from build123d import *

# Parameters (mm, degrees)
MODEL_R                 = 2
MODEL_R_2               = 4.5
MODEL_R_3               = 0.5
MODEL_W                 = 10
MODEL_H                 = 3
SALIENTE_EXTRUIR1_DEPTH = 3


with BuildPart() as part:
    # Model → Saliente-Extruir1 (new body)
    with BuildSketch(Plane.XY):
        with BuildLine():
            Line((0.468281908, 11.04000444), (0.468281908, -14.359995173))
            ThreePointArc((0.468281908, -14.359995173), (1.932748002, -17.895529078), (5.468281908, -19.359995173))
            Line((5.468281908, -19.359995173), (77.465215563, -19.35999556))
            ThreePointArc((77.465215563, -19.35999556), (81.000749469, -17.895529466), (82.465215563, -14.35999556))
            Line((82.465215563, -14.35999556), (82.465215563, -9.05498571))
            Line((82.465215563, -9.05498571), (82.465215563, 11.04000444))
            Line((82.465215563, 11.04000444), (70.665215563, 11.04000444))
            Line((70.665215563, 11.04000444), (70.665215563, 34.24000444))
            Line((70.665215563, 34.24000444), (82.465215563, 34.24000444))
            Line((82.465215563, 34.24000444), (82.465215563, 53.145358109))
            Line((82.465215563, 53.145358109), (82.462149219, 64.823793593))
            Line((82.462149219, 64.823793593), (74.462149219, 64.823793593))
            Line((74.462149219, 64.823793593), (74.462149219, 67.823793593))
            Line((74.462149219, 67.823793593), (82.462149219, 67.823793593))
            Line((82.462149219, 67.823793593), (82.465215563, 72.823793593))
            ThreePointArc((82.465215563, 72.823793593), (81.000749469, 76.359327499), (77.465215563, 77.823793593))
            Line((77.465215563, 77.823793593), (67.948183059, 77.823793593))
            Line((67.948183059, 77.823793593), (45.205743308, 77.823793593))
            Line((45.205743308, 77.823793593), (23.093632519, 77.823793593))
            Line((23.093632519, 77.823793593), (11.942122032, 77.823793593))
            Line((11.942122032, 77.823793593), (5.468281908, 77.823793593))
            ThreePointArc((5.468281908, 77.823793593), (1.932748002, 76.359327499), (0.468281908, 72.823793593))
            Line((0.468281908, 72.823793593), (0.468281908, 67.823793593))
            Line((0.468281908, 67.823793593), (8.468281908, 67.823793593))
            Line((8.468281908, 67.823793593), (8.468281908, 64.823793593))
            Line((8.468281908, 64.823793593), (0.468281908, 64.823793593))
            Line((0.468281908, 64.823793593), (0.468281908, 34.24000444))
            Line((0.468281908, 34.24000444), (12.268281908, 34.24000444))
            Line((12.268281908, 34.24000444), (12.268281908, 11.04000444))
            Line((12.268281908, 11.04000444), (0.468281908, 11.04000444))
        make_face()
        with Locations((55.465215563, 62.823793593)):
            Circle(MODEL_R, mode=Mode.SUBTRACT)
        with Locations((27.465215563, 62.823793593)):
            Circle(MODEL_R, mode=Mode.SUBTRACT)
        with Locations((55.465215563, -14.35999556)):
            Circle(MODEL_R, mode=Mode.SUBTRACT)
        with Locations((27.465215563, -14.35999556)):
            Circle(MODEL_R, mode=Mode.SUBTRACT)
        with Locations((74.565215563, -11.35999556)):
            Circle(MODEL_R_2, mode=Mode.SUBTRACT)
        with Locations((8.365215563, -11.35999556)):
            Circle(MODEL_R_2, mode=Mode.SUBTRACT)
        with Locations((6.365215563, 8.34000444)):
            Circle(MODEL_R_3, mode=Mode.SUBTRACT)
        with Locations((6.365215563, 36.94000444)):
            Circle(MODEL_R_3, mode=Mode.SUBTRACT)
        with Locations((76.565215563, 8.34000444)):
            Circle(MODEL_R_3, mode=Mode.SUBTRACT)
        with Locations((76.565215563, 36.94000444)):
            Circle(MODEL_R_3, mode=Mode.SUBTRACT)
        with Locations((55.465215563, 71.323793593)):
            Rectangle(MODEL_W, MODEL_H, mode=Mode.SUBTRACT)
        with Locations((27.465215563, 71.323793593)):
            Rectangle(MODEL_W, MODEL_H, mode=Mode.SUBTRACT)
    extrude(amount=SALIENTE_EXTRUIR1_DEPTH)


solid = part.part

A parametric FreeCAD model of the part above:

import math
import FreeCAD as App
import Part
import Sketcher
Q = App.Units.Quantity

doc = App.newDocument("Part")
body = doc.addObject("PartDesign::Body", "Body")

sketch1 = doc.addObject("Sketcher::SketchObject", "Sketch")
body.addObject(sketch1)
sketch1.AttachmentSupport = (doc.XY_Plane, [""])
sketch1.MapMode = "FlatFace"
sketch1.addGeometry([
    Part.LineSegment(App.Vector(0.5, 11, 0), App.Vector(0.5, -14.4, 0)),
    Part.ArcOfCircle(Part.Circle(App.Vector(5.5, -14.4, 0), App.Vector(0, 0, 1), 5), math.radians(-180), math.radians(-90)),
    Part.LineSegment(App.Vector(5.5, -19.4, 0), App.Vector(77.5, -19.4, 0)),
    Part.ArcOfCircle(Part.Circle(App.Vector(77.5, -14.4, 0), App.Vector(0, 0, 1), 5), math.radians(-90), math.radians(0)),
    Part.LineSegment(App.Vector(82.5, -14.4, 0), App.Vector(82.5, 11, 0)),
    Part.LineSegment(App.Vector(82.5, 11, 0), App.Vector(70.7, 11, 0)),
    Part.LineSegment(App.Vector(70.7, 11, 0), App.Vector(70.7, 34.2, 0)),
    Part.LineSegment(App.Vector(70.7, 34.2, 0), App.Vector(82.5, 34.2, 0)),
    Part.LineSegment(App.Vector(82.5, 34.2, 0), App.Vector(82.5, 53.1, 0)),
    Part.LineSegment(App.Vector(82.5, 53.1, 0), App.Vector(82.5, 64.8, 0)),
    Part.LineSegment(App.Vector(82.5, 64.8, 0), App.Vector(74.5, 64.8, 0)),
    Part.LineSegment(App.Vector(74.5, 64.8, 0), App.Vector(74.5, 67.8, 0)),
    Part.LineSegment(App.Vector(74.5, 67.8, 0), App.Vector(82.5, 67.8, 0)),
    Part.LineSegment(App.Vector(82.5, 67.8, 0), App.Vector(82.5, 72.8, 0)),
    Part.ArcOfCircle(Part.Circle(App.Vector(77.5, 72.8, 0), App.Vector(0, 0, 1), 5), math.radians(0), math.radians(90)),
    Part.LineSegment(App.Vector(77.5, 77.8, 0), App.Vector(5.5, 77.8, 0)),
    Part.ArcOfCircle(Part.Circle(App.Vector(5.5, 72.8, 0), App.Vector(0, 0, 1), 5), math.radians(90), math.radians(180)),
    Part.LineSegment(App.Vector(0.5, 72.8, 0), App.Vector(0.5, 67.8, 0)),
    Part.LineSegment(App.Vector(0.5, 67.8, 0), App.Vector(8.5, 67.8, 0)),
    Part.LineSegment(App.Vector(8.5, 67.8, 0), App.Vector(8.5, 64.8, 0)),
    Part.LineSegment(App.Vector(8.5, 64.8, 0), App.Vector(0.5, 64.8, 0)),
    Part.LineSegment(App.Vector(0.5, 64.8, 0), App.Vector(0.5, 34.2, 0)),
    Part.LineSegment(App.Vector(0.5, 34.2, 0), App.Vector(12.3, 34.2, 0)),
    Part.LineSegment(App.Vector(12.3, 34.2, 0), App.Vector(12.3, 11, 0)),
    Part.LineSegment(App.Vector(12.3, 11, 0), App.Vector(0.5, 11, 0)),
    Part.Circle(App.Vector(8.4, -11.4, 0), App.Vector(0, 0, 1), 4.5),
    Part.Circle(App.Vector(27.5, -14.4, 0), App.Vector(0, 0, 1), 2),
    Part.Circle(App.Vector(6.4, 8.3, 0), App.Vector(0, 0, 1), 0.5),
    Part.Circle(App.Vector(55.5, -14.4, 0), App.Vector(0, 0, 1), 2),
    Part.Circle(App.Vector(74.6, -11.4, 0), App.Vector(0, 0, 1), 4.5),
    Part.Circle(App.Vector(76.6, 8.3, 0), App.Vector(0, 0, 1), 0.5),
    Part.Circle(App.Vector(6.4, 36.9, 0), App.Vector(0, 0, 1), 0.5),
    Part.Circle(App.Vector(27.5, 62.8, 0), App.Vector(0, 0, 1), 2),
    Part.LineSegment(App.Vector(32.5, 69.8, 0), App.Vector(22.5, 69.8, 0)),
    Part.LineSegment(App.Vector(22.5, 69.8, 0), App.Vector(22.5, 72.8, 0)),
    Part.LineSegment(App.Vector(22.5, 72.8, 0), App.Vector(32.5, 72.8, 0)),
    Part.LineSegment(App.Vector(32.5, 72.8, 0), App.Vector(32.5, 69.8, 0)),
    Part.Circle(App.Vector(76.6, 36.9, 0), App.Vector(0, 0, 1), 0.5),
    Part.Circle(App.Vector(55.5, 62.8, 0), App.Vector(0, 0, 1), 2),
    Part.LineSegment(App.Vector(60.5, 69.8, 0), App.Vector(50.5, 69.8, 0)),
    Part.LineSegment(App.Vector(50.5, 69.8, 0), App.Vector(50.5, 72.8, 0)),
    Part.LineSegment(App.Vector(50.5, 72.8, 0), App.Vector(60.5, 72.8, 0)),
    Part.LineSegment(App.Vector(60.5, 72.8, 0), App.Vector(60.5, 69.8, 0)),
], False)
sketch1.addConstraint([
    Sketcher.Constraint("Tangent", 0, 2, 1, 1),
    Sketcher.Constraint("Tangent", 1, 2, 2, 1),
    Sketcher.Constraint("Tangent", 2, 2, 3, 1),
    Sketcher.Constraint("Tangent", 3, 2, 4, 1),
    Sketcher.Constraint("Coincident", 4, 2, 5, 1),
    Sketcher.Constraint("Coincident", 5, 2, 6, 1),
    Sketcher.Constraint("Coincident", 6, 2, 7, 1),
    Sketcher.Constraint("Coincident", 7, 2, 8, 1),
    Sketcher.Constraint("Coincident", 8, 2, 9, 1),
    Sketcher.Constraint("Coincident", 9, 2, 10, 1),
    Sketcher.Constraint("Coincident", 10, 2, 11, 1),
    Sketcher.Constraint("Coincident", 11, 2, 12, 1),
    Sketcher.Constraint("Coincident", 12, 2, 13, 1),
    Sketcher.Constraint("Coincident", 13, 2, 14, 1),
    Sketcher.Constraint("Tangent", 14, 2, 15, 1),
    Sketcher.Constraint("Tangent", 15, 2, 16, 1),
    Sketcher.Constraint("Tangent", 16, 2, 17, 1),
    Sketcher.Constraint("Coincident", 17, 2, 18, 1),
    Sketcher.Constraint("Coincident", 18, 2, 19, 1),
    Sketcher.Constraint("Coincident", 19, 2, 20, 1),
    Sketcher.Constraint("Coincident", 20, 2, 21, 1),
    Sketcher.Constraint("Coincident", 21, 2, 22, 1),
    Sketcher.Constraint("Coincident", 22, 2, 23, 1),
    Sketcher.Constraint("Coincident", 23, 2, 24, 1),
    Sketcher.Constraint("Coincident", 24, 2, 0, 1),
    Sketcher.Constraint("Coincident", 33, 2, 34, 1),
    Sketcher.Constraint("Coincident", 34, 2, 35, 1),
    Sketcher.Constraint("Coincident", 35, 2, 36, 1),
    Sketcher.Constraint("Coincident", 36, 2, 33, 1),
    Sketcher.Constraint("Coincident", 39, 2, 40, 1),
    Sketcher.Constraint("Coincident", 40, 2, 41, 1),
    Sketcher.Constraint("Coincident", 41, 2, 42, 1),
    Sketcher.Constraint("Coincident", 42, 2, 39, 1),
    Sketcher.Constraint("Vertical", 0),
    Sketcher.Constraint("Horizontal", 2),
    Sketcher.Constraint("Vertical", 4),
    Sketcher.Constraint("Horizontal", 5),
    Sketcher.Constraint("Vertical", 6),
    Sketcher.Constraint("Horizontal", 7),
    Sketcher.Constraint("Vertical", 8),
    Sketcher.Constraint("Horizontal", 10),
    Sketcher.Constraint("Vertical", 11),
    Sketcher.Constraint("Horizontal", 12),
    Sketcher.Constraint("Horizontal", 15),
    Sketcher.Constraint("Vertical", 17),
    Sketcher.Constraint("Horizontal", 18),
    Sketcher.Constraint("Vertical", 19),
    Sketcher.Constraint("Horizontal", 20),
    Sketcher.Constraint("Vertical", 21),
    Sketcher.Constraint("Horizontal", 22),
    Sketcher.Constraint("Vertical", 23),
    Sketcher.Constraint("Horizontal", 24),
    Sketcher.Constraint("Horizontal", 33),
    Sketcher.Constraint("Vertical", 34),
    Sketcher.Constraint("Horizontal", 35),
    Sketcher.Constraint("Vertical", 36),
    Sketcher.Constraint("Horizontal", 39),
    Sketcher.Constraint("Vertical", 40),
    Sketcher.Constraint("Horizontal", 41),
    Sketcher.Constraint("Vertical", 42),
    Sketcher.Constraint("Equal", 1, 3),
    Sketcher.Constraint("Equal", 3, 14),
    Sketcher.Constraint("Equal", 14, 16),
    Sketcher.Constraint("Equal", 26, 28),
    Sketcher.Constraint("Equal", 25, 29),
    Sketcher.Constraint("Equal", 27, 30),
    Sketcher.Constraint("Equal", 30, 31),
    Sketcher.Constraint("Equal", 28, 32),
    Sketcher.Constraint("Equal", 31, 37),
    Sketcher.Constraint("Equal", 32, 38),
    Sketcher.Constraint("Horizontal", 3, 3, 26, 3),
    Sketcher.Constraint("Horizontal", 26, 3, 28, 3),
    Sketcher.Constraint("Horizontal", 25, 3, 29, 3),
    Sketcher.Constraint("Horizontal", 27, 3, 30, 3),
    Sketcher.Constraint("Horizontal", 31, 3, 37, 3),
    Sketcher.Constraint("Horizontal", 32, 3, 38, 3),
    Sketcher.Constraint("Horizontal", 16, 3, 13, 2),
    Sketcher.Constraint("Horizontal", 12, 2, 17, 2),
    Sketcher.Constraint("Horizontal", 10, 2, 19, 2),
    Sketcher.Constraint("Horizontal", 7, 2, 21, 2),
    Sketcher.Constraint("Horizontal", 5, 2, 23, 2),
    Sketcher.Constraint("Horizontal", 16, 2, 34, 2),
    Sketcher.Constraint("Horizontal", 36, 2, 39, 2),
    Sketcher.Constraint("Horizontal", 35, 2, 40, 2),
    Sketcher.Constraint("Vertical", 3, 3, 14, 3),
    Sketcher.Constraint("Vertical", 1, 3, 16, 3),
    Sketcher.Constraint("Vertical", 27, 3, 31, 3),
    Sketcher.Constraint("Vertical", 26, 3, 32, 3),
    Sketcher.Constraint("Vertical", 30, 3, 37, 3),
    Sketcher.Constraint("Vertical", 28, 3, 38, 3),
    Sketcher.Constraint("Vertical", 4, 2, 7, 2),
    Sketcher.Constraint("Vertical", 9, 2, 12, 2),
    Sketcher.Constraint("Vertical", 17, 2, 20, 2),
    Sketcher.Constraint("Equal", 12, 18),
    Sketcher.Constraint("Equal", 7, 22),
    Sketcher.Constraint("Equal", 35, 39),
    Sketcher.Constraint("Equal", 19, 34),
    Sketcher.Constraint("Diameter", 25, Q("9 mm")),
    Sketcher.Constraint("Diameter", 26, Q("4 mm")),
    Sketcher.Constraint("Diameter", 27, Q("1 mm")),
    Sketcher.Constraint("Radius", 1, Q("5 mm")),
    Sketcher.Constraint("DistanceX", 10, 2, 10, 1, Q("8 mm")),
    Sketcher.Constraint("DistanceX", 33, 2, 33, 1, Q("10 mm")),
    Sketcher.Constraint("DistanceY", 11, 1, 11, 2, Q("3 mm")),
    Sketcher.Constraint("DistanceY", 17, 2, 17, 1, Q("5 mm")),
    Sketcher.Constraint("DistanceX", 5, 2, 5, 1, Q("11.8 mm")),
    Sketcher.Constraint("DistanceY", 0, 2, 0, 1, Q("25.4 mm")),
    Sketcher.Constraint("DistanceY", 6, 1, 6, 2, Q("23.2 mm")),
    Sketcher.Constraint("DistanceY", 1, 3, 25, 3, Q("3 mm")),
    Sketcher.Constraint("DistanceX", 26, 3, 3, 3, Q("50 mm")),
    Sketcher.Constraint("DistanceX", 27, 3, 25, 3, Q("2 mm")),
    Sketcher.Constraint("DistanceX", 28, 3, 3, 3, Q("22 mm")),
    Sketcher.Constraint("DistanceX", 29, 3, 30, 3, Q("2 mm")),
    Sketcher.Constraint("DistanceY", 32, 3, 16, 3, Q("10 mm")),
    Sketcher.Constraint("DistanceX", 33, 2, 32, 3, Q("5 mm")),
    Sketcher.Constraint("DistanceX", 39, 2, 38, 3, Q("5 mm")),
    Sketcher.Constraint("DistanceX", 25, 3, 3, 3, Q("69.1 mm")),
    Sketcher.Constraint("DistanceY", 25, 3, 27, 3, Q("19.7 mm")),
    Sketcher.Constraint("DistanceX", 29, 3, 3, 3, Q("2.9 mm")),
    Sketcher.Constraint("DistanceY", 27, 3, 31, 3, Q("28.6 mm")),
    Sketcher.Constraint("DistanceY", 21, 2, 21, 1, Q("30.583789 mm")),
    Sketcher.Constraint("DistanceX", 2, 1, 2, 2, Q("71.996934 mm")),
    Sketcher.Constraint("DistanceY", 8, 1, 8, 2, Q("18.905354 mm")),
    Sketcher.Constraint("DistanceX", -1, 1, 1, 3, Q("5.468282 mm")),
    Sketcher.Constraint("DistanceY", -1, 1, 8, 2, Q("53.145358 mm")),
    Sketcher.Constraint("DistanceX", -1, 1, 9, 2, Q("82.462149 mm")),
])
pad1 = doc.addObject("PartDesign::Pad", "Pad")
body.addObject(pad1)
pad1.Profile = sketch1
pad1.Length = 3

doc.recompute()
